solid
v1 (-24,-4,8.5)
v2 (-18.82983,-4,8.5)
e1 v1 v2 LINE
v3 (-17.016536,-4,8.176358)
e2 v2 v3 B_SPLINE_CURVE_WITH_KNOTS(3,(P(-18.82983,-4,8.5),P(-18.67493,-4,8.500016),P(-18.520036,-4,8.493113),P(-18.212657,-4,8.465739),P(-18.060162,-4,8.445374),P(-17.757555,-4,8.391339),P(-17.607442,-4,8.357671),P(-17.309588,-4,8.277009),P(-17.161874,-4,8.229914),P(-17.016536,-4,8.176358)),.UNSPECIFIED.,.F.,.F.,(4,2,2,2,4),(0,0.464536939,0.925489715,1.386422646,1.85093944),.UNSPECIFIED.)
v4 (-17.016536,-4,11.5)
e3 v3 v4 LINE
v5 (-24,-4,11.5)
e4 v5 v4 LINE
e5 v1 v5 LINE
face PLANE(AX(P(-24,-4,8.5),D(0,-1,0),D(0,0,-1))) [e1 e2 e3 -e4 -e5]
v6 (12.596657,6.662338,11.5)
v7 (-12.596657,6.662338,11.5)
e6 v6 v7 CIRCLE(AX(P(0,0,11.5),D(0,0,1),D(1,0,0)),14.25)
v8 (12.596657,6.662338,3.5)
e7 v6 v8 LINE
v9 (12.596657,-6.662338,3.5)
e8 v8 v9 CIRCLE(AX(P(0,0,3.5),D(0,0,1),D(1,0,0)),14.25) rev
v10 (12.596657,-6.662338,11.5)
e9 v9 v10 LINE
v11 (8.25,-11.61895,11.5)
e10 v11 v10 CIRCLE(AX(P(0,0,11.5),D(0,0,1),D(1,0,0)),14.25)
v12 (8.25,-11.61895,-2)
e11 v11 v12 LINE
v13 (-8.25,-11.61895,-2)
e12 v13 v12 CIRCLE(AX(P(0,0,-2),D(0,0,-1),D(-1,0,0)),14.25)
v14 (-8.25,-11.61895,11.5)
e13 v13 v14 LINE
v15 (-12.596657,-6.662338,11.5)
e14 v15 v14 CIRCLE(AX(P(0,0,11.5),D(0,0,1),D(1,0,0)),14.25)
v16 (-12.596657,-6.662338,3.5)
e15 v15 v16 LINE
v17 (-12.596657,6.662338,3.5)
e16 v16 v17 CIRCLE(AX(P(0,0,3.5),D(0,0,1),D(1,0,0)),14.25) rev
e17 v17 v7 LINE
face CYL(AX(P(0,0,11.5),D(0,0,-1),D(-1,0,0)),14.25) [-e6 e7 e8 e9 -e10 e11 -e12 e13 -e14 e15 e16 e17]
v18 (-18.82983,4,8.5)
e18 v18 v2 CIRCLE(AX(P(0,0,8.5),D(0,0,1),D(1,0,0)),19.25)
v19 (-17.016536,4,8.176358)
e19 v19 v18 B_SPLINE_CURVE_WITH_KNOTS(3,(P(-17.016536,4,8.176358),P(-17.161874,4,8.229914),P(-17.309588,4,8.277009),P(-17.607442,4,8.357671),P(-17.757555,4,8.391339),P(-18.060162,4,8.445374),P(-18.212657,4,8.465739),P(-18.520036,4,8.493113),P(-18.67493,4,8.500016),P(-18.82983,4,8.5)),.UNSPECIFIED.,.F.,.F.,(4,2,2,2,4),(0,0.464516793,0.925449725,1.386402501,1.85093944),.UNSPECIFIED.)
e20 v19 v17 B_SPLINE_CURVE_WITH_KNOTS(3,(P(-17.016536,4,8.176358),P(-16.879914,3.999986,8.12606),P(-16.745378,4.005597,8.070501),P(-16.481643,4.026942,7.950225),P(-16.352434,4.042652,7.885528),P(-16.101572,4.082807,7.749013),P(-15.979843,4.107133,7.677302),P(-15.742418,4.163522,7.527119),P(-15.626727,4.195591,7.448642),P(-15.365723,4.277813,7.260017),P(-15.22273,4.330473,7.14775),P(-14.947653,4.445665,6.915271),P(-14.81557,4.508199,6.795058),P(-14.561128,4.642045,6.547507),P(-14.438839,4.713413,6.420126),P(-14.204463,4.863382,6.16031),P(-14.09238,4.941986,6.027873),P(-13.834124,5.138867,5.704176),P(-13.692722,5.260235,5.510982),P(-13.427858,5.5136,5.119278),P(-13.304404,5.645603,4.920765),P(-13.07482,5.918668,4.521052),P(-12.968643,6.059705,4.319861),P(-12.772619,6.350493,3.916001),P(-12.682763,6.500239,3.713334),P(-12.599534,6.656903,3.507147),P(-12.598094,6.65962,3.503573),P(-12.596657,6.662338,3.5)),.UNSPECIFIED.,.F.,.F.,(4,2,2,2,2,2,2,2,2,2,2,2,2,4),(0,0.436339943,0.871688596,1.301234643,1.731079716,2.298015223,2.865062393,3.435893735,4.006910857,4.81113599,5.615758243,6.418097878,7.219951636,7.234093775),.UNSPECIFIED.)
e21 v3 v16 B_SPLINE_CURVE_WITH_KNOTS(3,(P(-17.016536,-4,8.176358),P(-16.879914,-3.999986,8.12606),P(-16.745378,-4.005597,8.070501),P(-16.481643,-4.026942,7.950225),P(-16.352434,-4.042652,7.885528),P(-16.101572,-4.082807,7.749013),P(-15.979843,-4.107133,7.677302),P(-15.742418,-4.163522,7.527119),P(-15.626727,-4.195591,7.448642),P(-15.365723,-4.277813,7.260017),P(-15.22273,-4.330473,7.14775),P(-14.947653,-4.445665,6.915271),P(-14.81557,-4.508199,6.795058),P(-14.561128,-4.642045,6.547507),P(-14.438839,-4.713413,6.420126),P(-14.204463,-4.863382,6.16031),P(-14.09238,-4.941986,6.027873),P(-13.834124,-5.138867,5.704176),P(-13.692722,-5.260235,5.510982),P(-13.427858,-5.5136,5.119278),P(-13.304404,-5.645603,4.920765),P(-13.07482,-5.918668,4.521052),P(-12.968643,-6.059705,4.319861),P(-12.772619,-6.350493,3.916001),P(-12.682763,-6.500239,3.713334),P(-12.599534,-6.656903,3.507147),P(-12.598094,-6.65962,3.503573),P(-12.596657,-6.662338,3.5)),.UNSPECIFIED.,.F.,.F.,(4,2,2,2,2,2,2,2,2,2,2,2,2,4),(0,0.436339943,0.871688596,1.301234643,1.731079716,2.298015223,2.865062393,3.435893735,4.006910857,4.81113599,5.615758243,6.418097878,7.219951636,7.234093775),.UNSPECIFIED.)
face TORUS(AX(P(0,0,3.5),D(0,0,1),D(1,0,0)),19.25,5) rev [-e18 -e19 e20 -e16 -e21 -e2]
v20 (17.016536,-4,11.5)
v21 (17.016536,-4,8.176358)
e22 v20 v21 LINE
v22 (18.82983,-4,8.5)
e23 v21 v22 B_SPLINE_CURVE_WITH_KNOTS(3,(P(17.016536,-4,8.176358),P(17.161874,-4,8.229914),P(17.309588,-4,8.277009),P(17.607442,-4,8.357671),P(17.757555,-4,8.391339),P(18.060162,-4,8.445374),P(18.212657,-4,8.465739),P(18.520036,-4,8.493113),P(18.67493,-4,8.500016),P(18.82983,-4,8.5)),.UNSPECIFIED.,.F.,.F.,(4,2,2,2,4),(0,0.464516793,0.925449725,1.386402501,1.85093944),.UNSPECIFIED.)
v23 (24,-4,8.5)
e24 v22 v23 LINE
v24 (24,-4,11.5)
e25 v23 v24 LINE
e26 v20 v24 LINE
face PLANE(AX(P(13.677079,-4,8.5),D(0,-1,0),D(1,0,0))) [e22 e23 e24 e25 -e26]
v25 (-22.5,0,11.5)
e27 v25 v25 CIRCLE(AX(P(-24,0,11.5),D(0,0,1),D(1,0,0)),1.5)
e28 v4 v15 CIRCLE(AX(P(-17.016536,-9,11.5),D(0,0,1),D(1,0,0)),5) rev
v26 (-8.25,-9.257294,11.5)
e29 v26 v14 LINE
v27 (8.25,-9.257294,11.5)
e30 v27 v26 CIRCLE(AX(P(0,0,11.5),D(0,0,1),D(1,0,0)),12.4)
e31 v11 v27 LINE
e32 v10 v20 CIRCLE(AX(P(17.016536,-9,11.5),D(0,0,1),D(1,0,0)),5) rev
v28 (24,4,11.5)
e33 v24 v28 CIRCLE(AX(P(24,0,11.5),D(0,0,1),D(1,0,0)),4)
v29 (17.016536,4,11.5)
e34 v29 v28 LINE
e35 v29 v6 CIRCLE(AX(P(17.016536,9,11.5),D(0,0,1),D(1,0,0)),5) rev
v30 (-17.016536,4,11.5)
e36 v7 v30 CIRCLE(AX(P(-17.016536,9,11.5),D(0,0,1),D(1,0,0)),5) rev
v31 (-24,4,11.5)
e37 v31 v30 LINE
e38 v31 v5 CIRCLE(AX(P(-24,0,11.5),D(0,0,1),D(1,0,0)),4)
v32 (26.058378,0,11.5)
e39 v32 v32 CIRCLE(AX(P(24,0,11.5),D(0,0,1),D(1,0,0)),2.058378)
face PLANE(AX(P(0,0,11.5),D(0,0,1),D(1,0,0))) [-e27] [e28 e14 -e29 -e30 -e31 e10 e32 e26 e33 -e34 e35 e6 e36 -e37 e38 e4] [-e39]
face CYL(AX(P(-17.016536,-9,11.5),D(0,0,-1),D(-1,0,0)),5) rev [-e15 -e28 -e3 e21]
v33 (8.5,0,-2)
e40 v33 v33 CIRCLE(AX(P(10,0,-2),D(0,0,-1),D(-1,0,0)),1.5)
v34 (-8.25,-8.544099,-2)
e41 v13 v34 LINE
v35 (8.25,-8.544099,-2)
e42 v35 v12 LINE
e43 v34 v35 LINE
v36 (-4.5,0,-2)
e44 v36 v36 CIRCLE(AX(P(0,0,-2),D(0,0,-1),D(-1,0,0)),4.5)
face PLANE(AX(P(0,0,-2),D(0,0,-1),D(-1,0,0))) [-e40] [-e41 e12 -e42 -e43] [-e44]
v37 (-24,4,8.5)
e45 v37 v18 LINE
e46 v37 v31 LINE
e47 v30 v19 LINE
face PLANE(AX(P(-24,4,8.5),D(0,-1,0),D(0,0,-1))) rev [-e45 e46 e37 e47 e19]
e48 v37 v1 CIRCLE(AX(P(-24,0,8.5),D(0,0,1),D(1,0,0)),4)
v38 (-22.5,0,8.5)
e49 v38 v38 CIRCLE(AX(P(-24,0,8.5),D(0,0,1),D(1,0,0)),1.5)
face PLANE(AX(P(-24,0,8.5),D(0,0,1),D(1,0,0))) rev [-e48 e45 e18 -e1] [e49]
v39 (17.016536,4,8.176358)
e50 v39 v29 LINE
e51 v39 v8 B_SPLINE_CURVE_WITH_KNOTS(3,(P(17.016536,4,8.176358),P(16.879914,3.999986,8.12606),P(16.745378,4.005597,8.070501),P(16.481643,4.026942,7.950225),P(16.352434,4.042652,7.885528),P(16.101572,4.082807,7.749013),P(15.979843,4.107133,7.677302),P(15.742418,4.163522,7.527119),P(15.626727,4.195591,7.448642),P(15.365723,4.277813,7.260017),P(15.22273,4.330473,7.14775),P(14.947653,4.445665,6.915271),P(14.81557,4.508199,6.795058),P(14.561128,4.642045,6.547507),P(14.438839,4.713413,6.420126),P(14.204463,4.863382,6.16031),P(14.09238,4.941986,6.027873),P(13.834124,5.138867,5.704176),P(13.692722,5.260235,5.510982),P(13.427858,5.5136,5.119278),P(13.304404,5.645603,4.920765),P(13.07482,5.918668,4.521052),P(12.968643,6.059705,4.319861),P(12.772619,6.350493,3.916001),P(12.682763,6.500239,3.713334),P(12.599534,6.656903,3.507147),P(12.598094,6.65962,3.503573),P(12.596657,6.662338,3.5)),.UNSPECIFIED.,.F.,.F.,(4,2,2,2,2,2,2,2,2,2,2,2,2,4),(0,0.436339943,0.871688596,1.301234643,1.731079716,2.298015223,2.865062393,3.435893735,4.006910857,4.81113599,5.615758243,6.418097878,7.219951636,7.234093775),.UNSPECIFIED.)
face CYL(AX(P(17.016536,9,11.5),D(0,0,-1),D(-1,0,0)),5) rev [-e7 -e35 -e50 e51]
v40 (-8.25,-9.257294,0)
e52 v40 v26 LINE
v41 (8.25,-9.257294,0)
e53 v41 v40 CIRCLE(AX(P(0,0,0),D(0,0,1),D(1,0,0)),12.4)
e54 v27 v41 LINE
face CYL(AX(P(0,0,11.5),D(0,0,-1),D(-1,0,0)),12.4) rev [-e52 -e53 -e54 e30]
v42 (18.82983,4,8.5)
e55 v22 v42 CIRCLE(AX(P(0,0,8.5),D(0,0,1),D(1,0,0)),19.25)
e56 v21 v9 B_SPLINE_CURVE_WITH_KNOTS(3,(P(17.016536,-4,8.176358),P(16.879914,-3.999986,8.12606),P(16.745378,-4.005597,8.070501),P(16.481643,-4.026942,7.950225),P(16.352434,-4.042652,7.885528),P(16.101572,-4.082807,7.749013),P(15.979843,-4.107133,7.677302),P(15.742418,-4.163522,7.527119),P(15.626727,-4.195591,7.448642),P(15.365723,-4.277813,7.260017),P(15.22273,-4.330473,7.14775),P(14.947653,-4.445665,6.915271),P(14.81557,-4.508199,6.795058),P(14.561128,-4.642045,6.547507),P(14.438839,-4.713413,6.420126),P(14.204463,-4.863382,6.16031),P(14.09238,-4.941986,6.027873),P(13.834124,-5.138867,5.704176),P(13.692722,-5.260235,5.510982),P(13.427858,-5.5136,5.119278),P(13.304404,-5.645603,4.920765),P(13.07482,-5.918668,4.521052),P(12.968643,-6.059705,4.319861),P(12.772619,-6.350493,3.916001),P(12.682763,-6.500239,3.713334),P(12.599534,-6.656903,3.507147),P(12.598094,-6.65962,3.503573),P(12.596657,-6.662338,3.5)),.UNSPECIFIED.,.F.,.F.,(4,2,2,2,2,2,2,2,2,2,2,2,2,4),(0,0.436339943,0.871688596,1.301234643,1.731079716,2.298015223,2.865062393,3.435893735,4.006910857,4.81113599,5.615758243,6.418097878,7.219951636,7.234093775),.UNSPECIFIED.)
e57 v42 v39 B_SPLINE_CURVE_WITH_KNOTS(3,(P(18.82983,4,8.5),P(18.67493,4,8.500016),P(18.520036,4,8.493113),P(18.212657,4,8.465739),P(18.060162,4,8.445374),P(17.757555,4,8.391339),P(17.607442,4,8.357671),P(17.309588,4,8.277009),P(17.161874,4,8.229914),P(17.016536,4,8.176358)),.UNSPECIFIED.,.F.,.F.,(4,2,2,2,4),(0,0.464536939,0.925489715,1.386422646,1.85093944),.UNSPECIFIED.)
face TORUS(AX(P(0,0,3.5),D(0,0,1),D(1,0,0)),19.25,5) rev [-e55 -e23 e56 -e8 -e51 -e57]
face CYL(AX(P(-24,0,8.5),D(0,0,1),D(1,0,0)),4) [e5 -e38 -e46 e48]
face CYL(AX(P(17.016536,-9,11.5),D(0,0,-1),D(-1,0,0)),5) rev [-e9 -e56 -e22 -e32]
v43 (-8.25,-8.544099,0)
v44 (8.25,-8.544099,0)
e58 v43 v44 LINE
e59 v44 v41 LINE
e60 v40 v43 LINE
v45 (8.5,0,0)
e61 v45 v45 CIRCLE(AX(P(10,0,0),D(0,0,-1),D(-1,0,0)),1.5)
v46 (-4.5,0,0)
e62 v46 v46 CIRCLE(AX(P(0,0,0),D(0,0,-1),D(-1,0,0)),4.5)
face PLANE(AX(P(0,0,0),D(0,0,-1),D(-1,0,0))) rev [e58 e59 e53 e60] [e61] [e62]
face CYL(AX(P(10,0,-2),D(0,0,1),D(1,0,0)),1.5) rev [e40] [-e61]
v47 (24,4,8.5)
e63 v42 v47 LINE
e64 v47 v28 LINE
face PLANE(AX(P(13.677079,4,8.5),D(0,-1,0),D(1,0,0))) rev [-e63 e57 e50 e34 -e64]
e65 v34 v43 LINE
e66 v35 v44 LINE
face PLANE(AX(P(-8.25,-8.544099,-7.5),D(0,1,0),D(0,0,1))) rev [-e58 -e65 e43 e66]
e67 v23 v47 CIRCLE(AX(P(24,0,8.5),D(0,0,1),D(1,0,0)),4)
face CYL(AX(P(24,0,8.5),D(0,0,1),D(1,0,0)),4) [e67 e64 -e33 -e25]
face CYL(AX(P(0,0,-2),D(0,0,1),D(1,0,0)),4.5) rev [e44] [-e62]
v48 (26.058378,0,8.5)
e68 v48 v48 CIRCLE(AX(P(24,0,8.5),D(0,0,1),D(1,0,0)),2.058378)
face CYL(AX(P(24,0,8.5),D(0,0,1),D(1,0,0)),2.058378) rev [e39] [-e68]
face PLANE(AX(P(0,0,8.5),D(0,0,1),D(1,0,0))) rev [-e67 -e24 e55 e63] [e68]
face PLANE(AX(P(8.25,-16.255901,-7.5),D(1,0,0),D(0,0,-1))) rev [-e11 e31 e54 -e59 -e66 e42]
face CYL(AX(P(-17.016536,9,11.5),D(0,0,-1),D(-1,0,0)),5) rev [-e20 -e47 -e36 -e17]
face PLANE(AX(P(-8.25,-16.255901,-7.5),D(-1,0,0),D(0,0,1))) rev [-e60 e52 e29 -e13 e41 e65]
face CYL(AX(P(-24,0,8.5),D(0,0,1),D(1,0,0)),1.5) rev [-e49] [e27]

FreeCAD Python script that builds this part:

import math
import FreeCAD as App
import Part
import Sketcher
from FreeCAD import Vector


def edges_at(feature, points):
    """Names of the edges that pass closest to the given points."""
    edges = feature.Shape.Edges
    near = lambda p: min(range(len(edges)), key=lambda i: edges[i].distToShape(Part.Vertex(*p))[0])
    return sorted({f"Edge{near(p) + 1}" for p in points})


def add_polygon(sketch, points):
    """Adds a closed chain of lines whose ends are joined by coincident constraints."""
    first, n = sketch.GeometryCount, len(points)
    for a, b in zip(points, points[1:] + points[:1]):
        sketch.addGeometry(Part.LineSegment(App.Vector(*a, 0), App.Vector(*b, 0)), False)
    for i in range(n):
        sketch.addConstraint(Sketcher.Constraint("Coincident", first + i, 2, first + (i + 1) % n, 1))

doc = App.newDocument("Part")
body = doc.addObject("PartDesign::Body", "Body")

# Sketch on XY plane
sketch1 = body.newObject("Sketcher::SketchObject", "Sketch")
sketch1.AttachmentSupport = (doc.getObject("XY_Plane"), [""])
sketch1.MapMode = "FlatFace"
sketch1.addGeometry([
    Part.Circle(Vector(0, 0, 0), Vector(0, 0, 1), 14),
    Part.Circle(Vector(0, 0, 0), Vector(0, 0, 1), 12),
], False)
sketch1.addConstraint([
    Sketcher.Constraint("Coincident", 0, 3, -1, 1),
    Sketcher.Constraint("Coincident", 1, 3, -1, 1),
    Sketcher.Constraint("Diameter", 0, 28.5),
    Sketcher.Constraint("Diameter", 1, 24.8),
])
pad1 = body.newObject("PartDesign::Pad", "Pad")
pad1.Profile = sketch1
pad1.Length = 11.5

# Sketch on XY plane
sketch2 = body.newObject("Sketcher::SketchObject", "Sketch001")
sketch2.AttachmentSupport = (doc.getObject("XY_Plane"), [""])
sketch2.MapMode = "FlatFace"
sketch2.AttachmentOffset = App.Placement(Vector(0, 0, -2), App.Rotation())
sketch2.addGeometry([
    Part.Circle(Vector(0, 0, 0), Vector(0, 0, 1), 14.2),
    Part.Circle(Vector(10, 0, 0), Vector(0, 0, 1), 1.5),
    Part.Circle(Vector(0, 0, 0), Vector(0, 0, 1), 4.5),
], False)
sketch2.addConstraint([
    Sketcher.Constraint("Coincident", 0, 3, -1, 1),
    Sketcher.Constraint("Coincident", 2, 3, -1, 1),
    Sketcher.Constraint("PointOnObject", 1, 3, -1),
    Sketcher.Constraint("Diameter", 1, 3.0),
    Sketcher.Constraint("Diameter", 2, 9.0),
    Sketcher.Constraint("Diameter", 0, 28.5),
    Sketcher.Constraint("DistanceX", -1, 1, 1, 3, 10.0),
])
pad2 = body.newObject("PartDesign::Pad", "Pad001")
pad2.Profile = sketch2
pad2.Length = 2

# Sketch on XY plane
sketch3 = body.newObject("Sketcher::SketchObject", "Sketch002")
sketch3.AttachmentSupport = (doc.getObject("XY_Plane"), [""])
sketch3.MapMode = "FlatFace"
sketch3.AttachmentOffset = App.Placement(Vector(0, 0, 11.5), App.Rotation())
add_polygon(sketch3, [(-8, -9), (-8, -16), (8, -16), (8, -9)])  # lines 0-3
sketch3.addConstraint([
    Sketcher.Constraint("Vertical", 0),
    Sketcher.Constraint("Horizontal", 1),
    Sketcher.Constraint("Vertical", 2),
    Sketcher.Constraint("Horizontal", 3),
    Sketcher.Constraint("DistanceX", 1, 1, 1, 2, 16.5),
    Sketcher.Constraint("DistanceX", 0, 2, -1, 1, 8.25),
    Sketcher.Constraint("DistanceY", 0, 2, 0, 1, 7.711802),
    Sketcher.Constraint("DistanceY", 0, 2, -1, 1, 16.255901),
])
pocket1 = body.newObject("PartDesign::Pocket", "Pocket")
pocket1.Profile = sketch3
pocket1.Length = 19

# Sketch on XY plane
sketch4 = body.newObject("Sketcher::SketchObject", "Sketch003")
sketch4.AttachmentSupport = (doc.getObject("XY_Plane"), [""])
sketch4.MapMode = "FlatFace"
sketch4.AttachmentOffset = App.Placement(Vector(0, 0, 8.5), App.Rotation())
sketch4.addGeometry([
    Part.LineSegment(Vector(-13.7, 4, 0), Vector(-24, 4, 0)),  # 0
    Part.ArcOfCircle(Part.Circle(Vector(-24, 0, 0), Vector(0, 0, 1), 4), math.radians(90), math.radians(270)),  # 1
    Part.LineSegment(Vector(-24, -4, 0), Vector(-13.7, -4, 0)),  # 2
    Part.ArcOfCircle(Part.Circle(Vector(0, 0, 0), Vector(0, 0, 1), 14.3), math.radians(164), math.radians(196)),  # 3
    Part.Circle(Vector(-24, 0, 0), Vector(0, 0, 1), 1.5),  # 4
    Part.LineSegment(Vector(24, 4, 0), Vector(13.7, 4, 0)),  # 5
    Part.ArcOfCircle(Part.Circle(Vector(0, 0, 0), Vector(0, 0, 1), 14.3), math.radians(-16), math.radians(16)),  # 6
    Part.LineSegment(Vector(13.7, -4, 0), Vector(24, -4, 0)),  # 7
    Part.ArcOfCircle(Part.Circle(Vector(24, 0, 0), Vector(0, 0, 1), 4), math.radians(-90), math.radians(90)),  # 8
    Part.Circle(Vector(24, 0, 0), Vector(0, 0, 1), 2.1),  # 9
], False)
sketch4.addConstraint([
    Sketcher.Constraint("Tangent", 0, 2, 1, 1),
    Sketcher.Constraint("Tangent", 1, 2, 2, 1),
    Sketcher.Constraint("Coincident", 2, 2, 3, 2),
    Sketcher.Constraint("Coincident", 3, 1, 0, 1),
    Sketcher.Constraint("Coincident", 5, 2, 6, 2),
    Sketcher.Constraint("Coincident", 6, 1, 7, 1),
    Sketcher.Constraint("Tangent", 7, 2, 8, 1),
    Sketcher.Constraint("Tangent", 8, 2, 5, 1),
    Sketcher.Constraint("Horizontal", 0),
    Sketcher.Constraint("Horizontal", 2),
    Sketcher.Constraint("Horizontal", 5),
    Sketcher.Constraint("Horizontal", 7),
    Sketcher.Constraint("Coincident", 3, 3, -1, 1),
    Sketcher.Constraint("Coincident", 6, 3, -1, 1),
    Sketcher.Constraint("Coincident", 4, 3, 1, 3),
    Sketcher.Constraint("Coincident", 9, 3, 8, 3),
    Sketcher.Constraint("Equal", 3, 6),
    Sketcher.Constraint("Equal", 1, 8),
    Sketcher.Constraint("Symmetric", 1, 3, 8, 3, -1, 1),
    Sketcher.Constraint("PointOnObject", 1, 3, -1),
    Sketcher.Constraint("Diameter", 4, 3.0),
    Sketcher.Constraint("Radius", 1, 4.0),
    Sketcher.Constraint("Radius", 3, 14.25),
    Sketcher.Constraint("DistanceX", 1, 3, -1, 1, 24.0),
    Sketcher.Constraint("Diameter", 9, 4.116756),
])
pad3 = body.newObject("PartDesign::Pad", "Pad002")
pad3.Profile = sketch4
pad3.Length = 3
doc.recompute()

fillet = body.newObject("PartDesign::Fillet", "Fillet")
fillet.Base = (pad3, edges_at(pad3, [
    (-13.677, 4, 10),
    (-13.677, -4, 10),
    (-14.25, 0, 8.5),
    (13.677, -4, 10),
    (13.677, 4, 10),
    (14.25, 0, 8.5),
]))
fillet.Radius = 5

doc.recompute()
